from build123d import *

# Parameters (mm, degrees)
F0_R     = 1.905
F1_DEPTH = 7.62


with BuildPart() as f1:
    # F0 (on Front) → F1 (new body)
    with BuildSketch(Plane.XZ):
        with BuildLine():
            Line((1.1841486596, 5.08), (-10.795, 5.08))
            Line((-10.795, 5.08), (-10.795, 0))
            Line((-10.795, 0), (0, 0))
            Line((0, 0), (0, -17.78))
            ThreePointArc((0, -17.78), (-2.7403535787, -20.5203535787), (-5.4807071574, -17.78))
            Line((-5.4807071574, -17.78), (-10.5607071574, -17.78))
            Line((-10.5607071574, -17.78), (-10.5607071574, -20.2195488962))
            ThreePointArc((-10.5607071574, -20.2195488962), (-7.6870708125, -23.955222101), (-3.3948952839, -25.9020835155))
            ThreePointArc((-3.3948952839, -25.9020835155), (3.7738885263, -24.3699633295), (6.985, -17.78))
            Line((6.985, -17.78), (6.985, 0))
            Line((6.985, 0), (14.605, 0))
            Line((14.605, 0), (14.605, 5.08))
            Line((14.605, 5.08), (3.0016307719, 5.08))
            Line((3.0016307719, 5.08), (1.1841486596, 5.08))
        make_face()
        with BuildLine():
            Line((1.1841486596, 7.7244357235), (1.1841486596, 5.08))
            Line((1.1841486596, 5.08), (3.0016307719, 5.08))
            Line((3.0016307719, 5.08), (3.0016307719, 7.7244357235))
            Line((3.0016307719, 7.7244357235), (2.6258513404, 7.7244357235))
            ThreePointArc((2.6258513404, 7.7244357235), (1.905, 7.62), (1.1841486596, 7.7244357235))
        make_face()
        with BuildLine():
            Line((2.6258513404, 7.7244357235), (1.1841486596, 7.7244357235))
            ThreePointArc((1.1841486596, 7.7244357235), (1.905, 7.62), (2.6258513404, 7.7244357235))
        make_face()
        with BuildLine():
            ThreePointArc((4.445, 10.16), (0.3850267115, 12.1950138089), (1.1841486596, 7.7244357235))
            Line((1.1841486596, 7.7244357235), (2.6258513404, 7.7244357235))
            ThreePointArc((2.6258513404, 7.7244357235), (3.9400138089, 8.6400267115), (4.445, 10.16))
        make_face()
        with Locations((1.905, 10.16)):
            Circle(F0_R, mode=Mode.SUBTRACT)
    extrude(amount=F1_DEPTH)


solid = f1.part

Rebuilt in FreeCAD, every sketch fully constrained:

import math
import FreeCAD as App
import Part
import Sketcher

V = App.Vector
Q = App.Units.Quantity

doc = App.newDocument("Part")
body = doc.addObject("PartDesign::Body", "Body")

# Sketch on XZ plane
sketch1 = body.newObject("Sketcher::SketchObject", "Sketch")
sketch1.AttachmentSupport = (doc.getObject("XZ_Plane"), [""])
sketch1.MapMode = "FlatFace"
sketch1.addGeometry([
    Part.LineSegment(V(-10.795, 5.08, 0), V(-10.795, 0, 0)),  # 0
    Part.LineSegment(V(-10.795, 0, 0), V(0, 0, 0)),  # 1
    Part.LineSegment(V(0, 0, 0), V(0, -17.78, 0)),  # 2
    Part.ArcOfCircle(Part.Circle(V(-2.740354, -17.78, 0), V(0, 0, 1), 2.740354), math.radians(180), math.radians(360)),  # 3
    Part.LineSegment(V(-5.480707, -17.78, 0), V(-10.560707, -17.78, 0)),  # 4
    Part.LineSegment(V(-10.560707, -17.78, 0), V(-10.560707, -20.219549, 0)),  # 5
    Part.ArcOfCircle(Part.Circle(V(-1.641511, -16.331627, 0), V(0, 0, 1), 9.729748), math.radians(-156.447373), math.radians(-100.38191)),  # 6
    Part.ArcOfCircle(Part.Circle(V(-1.382641, -17.78, 0), V(0, 0, 1), 8.367641), math.radians(-103.914903), math.radians(0)),  # 7
    Part.LineSegment(V(6.985, -17.78, 0), V(6.985, 0, 0)),  # 8
    Part.LineSegment(V(6.985, 0, 0), V(14.605, 0, 0)),  # 9
    Part.LineSegment(V(14.605, 0, 0), V(14.605, 5.08, 0)),  # 10
    Part.LineSegment(V(14.605, 5.08, 0), V(3.001631, 5.08, 0)),  # 11
    Part.LineSegment(V(3.001631, 5.08, 0), V(3.001631, 7.724436, 0)),  # 12
    Part.LineSegment(V(3.001631, 7.724436, 0), V(2.625851, 7.724436, 0)),  # 13
    Part.ArcOfCircle(Part.Circle(V(1.905, 10.16, 0), V(0, 0, 1), 2.54), math.radians(-73.512883), math.radians(0)),  # 14
    Part.ArcOfCircle(Part.Circle(V(1.905, 10.16, 0), V(0, 0, 1), 2.54), math.radians(0), math.radians(253.512883)),  # 15
    Part.LineSegment(V(1.184149, 7.724436, 0), V(1.184149, 5.08, 0)),  # 16
    Part.LineSegment(V(1.184149, 5.08, 0), V(-10.795, 5.08, 0)),  # 17
    Part.Circle(V(1.905, 10.16, 0), V(0, 0, 1), 1.905),  # 18
], False)
sketch1.addConstraint([
    Sketcher.Constraint("Coincident", 0, 2, 1, 1),
    Sketcher.Constraint("Coincident", 1, 2, 2, 1),
    Sketcher.Constraint("Coincident", 2, 2, 3, 2),
    Sketcher.Constraint("Coincident", 3, 1, 4, 1),
    Sketcher.Constraint("Coincident", 4, 2, 5, 1),
    Sketcher.Constraint("Coincident", 5, 2, 6, 1),
    Sketcher.Constraint("Coincident", 6, 2, 7, 1),
    Sketcher.Constraint("Coincident", 7, 2, 8, 1),
    Sketcher.Constraint("Coincident", 8, 2, 9, 1),
    Sketcher.Constraint("Coincident", 9, 2, 10, 1),
    Sketcher.Constraint("Coincident", 10, 2, 11, 1),
    Sketcher.Constraint("Coincident", 11, 2, 12, 1),
    Sketcher.Constraint("Coincident", 12, 2, 13, 1),
    Sketcher.Constraint("Coincident", 13, 2, 14, 1),
    Sketcher.Constraint("Coincident", 14, 2, 15, 1),
    Sketcher.Constraint("Coincident", 15, 2, 16, 1),
    Sketcher.Constraint("Coincident", 16, 2, 17, 1),
    Sketcher.Constraint("Coincident", 17, 2, 0, 1),
    Sketcher.Constraint("Vertical", 0),
    Sketcher.Constraint("Horizontal", 1),
    Sketcher.Constraint("Vertical", 2),
    Sketcher.Constraint("Horizontal", 4),
    Sketcher.Constraint("Vertical", 5),
    Sketcher.Constraint("Vertical", 8),
    Sketcher.Constraint("Horizontal", 9),
    Sketcher.Constraint("Vertical", 10),
    Sketcher.Constraint("Horizontal", 11),
    Sketcher.Constraint("Vertical", 12),
    Sketcher.Constraint("Horizontal", 13),
    Sketcher.Constraint("Vertical", 16),
    Sketcher.Constraint("Horizontal", 17),
    Sketcher.Constraint("Coincident", 1, 2, -1, 1),
    Sketcher.Constraint("Coincident", 15, 3, 14, 3),
    Sketcher.Constraint("Coincident", 18, 3, 14, 3),
    Sketcher.Constraint("PointOnObject", 8, 2, -1),
    Sketcher.Constraint("Radius", 14, Q("0.1 in")),
    Sketcher.Constraint("Diameter", 18, Q("0.15 in")),
    Sketcher.Constraint("DistanceX", 4, 2, 4, 1, Q("0.2 in")),
    Sketcher.Constraint("DistanceX", 9, 1, 9, 2, Q("0.3 in")),
    Sketcher.Constraint("DistanceY", 0, 2, 0, 1, Q("0.2 in")),
    Sketcher.Constraint("DistanceY", 2, 2, 2, 1, Q("0.7 in")),
    Sketcher.Constraint("DistanceY", 8, 1, 8, 2, Q("0.7 in")),
    Sketcher.Constraint("DistanceY", 10, 1, 10, 2, Q("0.2 in")),
    Sketcher.Constraint("DistanceY", 3, 3, -1, 1, Q("0.7 in")),
    Sketcher.Constraint("DistanceY", 7, 3, -1, 1, Q("0.7 in")),
    Sketcher.Constraint("DistanceY", -1, 1, 14, 3, Q("0.4 in")),
    Sketcher.Constraint("DistanceY", 3, 1, -1, 1, Q("0.7 in")),
    Sketcher.Constraint("DistanceY", -1, 1, 14, 2, Q("0.4 in")),
    Sketcher.Constraint("DistanceX", 0, 2, 14, 3, Q("0.5 in")),
    Sketcher.Constraint("DistanceX", 14, 3, 8, 2, Q("0.2 in")),
    Sketcher.Constraint("DistanceX", 1, 1, 1, 2, Q("0.425 in")),
    Sketcher.Constraint("Radius", 7, 8.367641),
    Sketcher.Constraint("Radius", 3, 2.740354),
    Sketcher.Constraint("Radius", 6, 9.729748),
    Sketcher.Constraint("DistanceX", 11, 2, 11, 1, 11.603369),
    Sketcher.Constraint("DistanceX", 13, 2, 13, 1, 0.375779),
    Sketcher.Constraint("DistanceX", 17, 2, 17, 1, 11.979149),
    Sketcher.Constraint("DistanceY", 5, 2, 5, 1, 2.439549),
    Sketcher.Constraint("DistanceX", 6, 3, -1, 1, 1.641511),
])
pad1 = body.newObject("PartDesign::Pad", "Pad")
pad1.Profile = sketch1
pad1.Length = Q("0.3 in")

doc.recompute()
